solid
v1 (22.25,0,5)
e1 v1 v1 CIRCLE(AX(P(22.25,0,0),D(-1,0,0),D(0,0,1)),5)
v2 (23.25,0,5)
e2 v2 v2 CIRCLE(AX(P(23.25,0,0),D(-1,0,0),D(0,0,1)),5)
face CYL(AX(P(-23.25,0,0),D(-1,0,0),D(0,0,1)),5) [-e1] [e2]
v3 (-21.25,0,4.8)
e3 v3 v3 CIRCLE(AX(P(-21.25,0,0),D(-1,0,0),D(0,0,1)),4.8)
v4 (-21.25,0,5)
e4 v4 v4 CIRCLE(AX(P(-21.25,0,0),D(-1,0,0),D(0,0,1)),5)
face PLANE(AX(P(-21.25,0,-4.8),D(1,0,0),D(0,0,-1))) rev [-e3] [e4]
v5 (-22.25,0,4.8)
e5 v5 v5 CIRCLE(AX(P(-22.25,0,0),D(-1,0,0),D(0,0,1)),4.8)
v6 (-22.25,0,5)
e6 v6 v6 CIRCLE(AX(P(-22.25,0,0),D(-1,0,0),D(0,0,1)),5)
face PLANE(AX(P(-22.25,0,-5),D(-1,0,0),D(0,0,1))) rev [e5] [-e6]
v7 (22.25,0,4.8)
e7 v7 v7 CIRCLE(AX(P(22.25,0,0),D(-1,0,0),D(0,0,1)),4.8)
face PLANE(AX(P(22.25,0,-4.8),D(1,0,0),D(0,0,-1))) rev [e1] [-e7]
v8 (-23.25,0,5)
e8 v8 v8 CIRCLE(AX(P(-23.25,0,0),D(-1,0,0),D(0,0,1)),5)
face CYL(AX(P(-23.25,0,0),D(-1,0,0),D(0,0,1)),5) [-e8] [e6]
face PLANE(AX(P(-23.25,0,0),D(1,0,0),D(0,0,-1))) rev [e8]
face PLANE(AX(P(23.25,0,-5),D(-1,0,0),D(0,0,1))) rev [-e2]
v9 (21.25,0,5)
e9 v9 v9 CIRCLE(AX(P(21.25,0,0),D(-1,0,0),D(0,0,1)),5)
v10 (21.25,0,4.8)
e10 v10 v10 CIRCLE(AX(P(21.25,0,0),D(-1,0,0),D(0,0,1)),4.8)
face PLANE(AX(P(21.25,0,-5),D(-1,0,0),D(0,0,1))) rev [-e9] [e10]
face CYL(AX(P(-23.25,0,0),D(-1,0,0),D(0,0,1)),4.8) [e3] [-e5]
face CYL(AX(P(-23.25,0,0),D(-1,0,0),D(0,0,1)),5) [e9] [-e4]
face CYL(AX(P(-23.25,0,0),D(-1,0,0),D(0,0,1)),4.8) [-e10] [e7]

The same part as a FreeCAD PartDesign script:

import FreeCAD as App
import Part
import Sketcher


def add_polygon(sketch, points):
    """Adds a closed chain of lines whose ends are joined by coincident constraints."""
    first, n = sketch.GeometryCount, len(points)
    for a, b in zip(points, points[1:] + points[:1]):
        sketch.addGeometry(Part.LineSegment(App.Vector(*a, 0), App.Vector(*b, 0)), False)
    for i in range(n):
        sketch.addConstraint(Sketcher.Constraint("Coincident", first + i, 2, first + (i + 1) % n, 1))

doc = App.newDocument("Part")
body = doc.addObject("PartDesign::Body", "Body")

sketch1 = body.newObject("Sketcher::SketchObject", "Sketch")
sketch1.AttachmentSupport = (doc.getObject("XZ_Plane"), [""])
sketch1.MapMode = "FlatFace"
add_polygon(sketch1, [(-23.25, -5), (-23.25, 0), (23.25, 0), (23.25, -5), (22.25, -5), (22.25, -4.8), (21.25, -4.8), (21.25, -5), (-21.25, -5), (-21.25, -4.8), (-22.25, -4.8), (-22.25, -5)])
sketch1.addConstraint([
    Sketcher.Constraint("Vertical", 0),
    Sketcher.Constraint("Horizontal", 1),
    Sketcher.Constraint("Vertical", 2),
    Sketcher.Constraint("Horizontal", 3),
    Sketcher.Constraint("Vertical", 4),
    Sketcher.Constraint("Horizontal", 5),
    Sketcher.Constraint("Vertical", 6),
    Sketcher.Constraint("Horizontal", 7),
    Sketcher.Constraint("Vertical", 8),
    Sketcher.Constraint("Horizontal", 9),
    Sketcher.Constraint("Vertical", 10),
    Sketcher.Constraint("Horizontal", 11),
    Sketcher.Constraint("Symmetric", 0, 2, 1, 2, -1, 1),
    Sketcher.Constraint("Symmetric", 5, 2, 8, 2, -2),
    Sketcher.Constraint("Symmetric", 3, 2, 10, 2, -2),
    Sketcher.Constraint("Horizontal", 3, 2, 6, 2),
    Sketcher.Constraint("Equal", 3, 5),
    Sketcher.Constraint("DistanceX", 3, 2, 3, 1, 1.0),
    Sketcher.Constraint("DistanceY", 0, 1, 0, 2, 5.0),
    Sketcher.Constraint("DistanceX", 1, 1, 1, 2, 46.5),
    Sketcher.Constraint("DistanceY", 4, 1, 4, 2, 0.2),
])
revolution = body.newObject("PartDesign::Revolution", "Revolution")
revolution.Profile = sketch1
revolution.ReferenceAxis = (sketch1, ["H_Axis"])
revolution.Angle = 360

doc.recompute()
